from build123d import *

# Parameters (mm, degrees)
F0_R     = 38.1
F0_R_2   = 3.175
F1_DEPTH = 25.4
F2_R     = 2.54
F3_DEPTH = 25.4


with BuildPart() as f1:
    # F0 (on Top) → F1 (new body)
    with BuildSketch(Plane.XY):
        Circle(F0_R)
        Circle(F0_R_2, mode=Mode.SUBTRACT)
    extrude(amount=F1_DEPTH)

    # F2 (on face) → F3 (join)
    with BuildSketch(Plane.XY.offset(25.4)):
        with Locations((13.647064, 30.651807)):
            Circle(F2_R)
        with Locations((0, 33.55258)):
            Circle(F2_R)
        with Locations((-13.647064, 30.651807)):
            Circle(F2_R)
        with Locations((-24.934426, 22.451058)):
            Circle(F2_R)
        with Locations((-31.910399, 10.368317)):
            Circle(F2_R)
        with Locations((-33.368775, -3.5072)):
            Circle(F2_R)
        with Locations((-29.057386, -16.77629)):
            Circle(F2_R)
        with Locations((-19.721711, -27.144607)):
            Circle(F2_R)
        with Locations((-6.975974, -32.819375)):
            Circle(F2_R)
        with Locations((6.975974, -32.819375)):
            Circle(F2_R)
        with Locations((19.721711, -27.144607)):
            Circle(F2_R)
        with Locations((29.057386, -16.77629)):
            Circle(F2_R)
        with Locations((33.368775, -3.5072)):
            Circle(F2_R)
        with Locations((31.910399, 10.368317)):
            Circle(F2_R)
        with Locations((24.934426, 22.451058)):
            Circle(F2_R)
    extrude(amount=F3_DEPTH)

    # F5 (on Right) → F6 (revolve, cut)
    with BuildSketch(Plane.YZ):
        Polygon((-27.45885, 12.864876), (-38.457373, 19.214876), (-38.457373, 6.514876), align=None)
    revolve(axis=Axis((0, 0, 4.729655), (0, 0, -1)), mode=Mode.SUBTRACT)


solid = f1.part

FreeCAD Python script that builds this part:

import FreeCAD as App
import Part
import Sketcher

V = App.Vector
Q = App.Units.Quantity


def add_polygon(sketch, points):
    """Adds a closed chain of lines whose ends are joined by coincident constraints."""
    first, n = sketch.GeometryCount, len(points)
    for a, b in zip(points, points[1:] + points[:1]):
        sketch.addGeometry(Part.LineSegment(App.Vector(*a, 0), App.Vector(*b, 0)), False)
    for i in range(n):
        sketch.addConstraint(Sketcher.Constraint("Coincident", first + i, 2, first + (i + 1) % n, 1))

doc = App.newDocument("Part")
body = doc.addObject("PartDesign::Body", "Body")

# Sketch on XY plane
sketch1 = body.newObject("Sketcher::SketchObject", "Sketch")
sketch1.AttachmentSupport = (doc.getObject("XY_Plane"), [""])
sketch1.MapMode = "FlatFace"
sketch1.addGeometry(Part.Circle(V(0, 0, 0), V(0, 0, 1), 38.1), False)
sketch1.addGeometry(Part.Circle(V(0, 0, 0), V(0, 0, 1), 3.2), False)
sketch1.addConstraint(Sketcher.Constraint("Coincident", 0, 3, -1, 1))
sketch1.addConstraint(Sketcher.Constraint("Coincident", 1, 3, -1, 1))
sketch1.addConstraint(Sketcher.Constraint("Diameter", 0, Q("3 in")))
sketch1.addConstraint(Sketcher.Constraint("Diameter", 1, Q("0.25 in")))
pad1 = body.newObject("PartDesign::Pad", "Pad")
pad1.Profile = sketch1
pad1.Length = Q("1 in")

# Sketch on XY plane
sketch2 = body.newObject("Sketcher::SketchObject", "Sketch001")
sketch2.AttachmentSupport = (doc.getObject("XY_Plane"), [""])
sketch2.MapMode = "FlatFace"
sketch2.AttachmentOffset = App.Placement(V(0, 0, 1 * 25.4), App.Rotation())
sketch2.addGeometry(Part.Circle(V(13.6, 30.7, 0), V(0, 0, 1), 2.5), False)
sketch2.addGeometry(Part.Circle(V(0, 33.6, 0), V(0, 0, 1), 2.5), False)
sketch2.addGeometry(Part.Circle(V(-13.6, 30.7, 0), V(0, 0, 1), 2.5), False)
sketch2.addGeometry(Part.Circle(V(-24.9, 22.5, 0), V(0, 0, 1), 2.5), False)
sketch2.addGeometry(Part.Circle(V(-31.9, 10.4, 0), V(0, 0, 1), 2.5), False)
sketch2.addGeometry(Part.Circle(V(-33.4, -3.5, 0), V(0, 0, 1), 2.5), False)
sketch2.addGeometry(Part.Circle(V(-29.1, -16.8, 0), V(0, 0, 1), 2.5), False)
sketch2.addGeometry(Part.Circle(V(-19.7, -27.1, 0), V(0, 0, 1), 2.5), False)
sketch2.addGeometry(Part.Circle(V(-7, -32.8, 0), V(0, 0, 1), 2.5), False)
sketch2.addGeometry(Part.Circle(V(7, -32.8, 0), V(0, 0, 1), 2.5), False)
sketch2.addGeometry(Part.Circle(V(19.7, -27.1, 0), V(0, 0, 1), 2.5), False)
sketch2.addGeometry(Part.Circle(V(29.1, -16.8, 0), V(0, 0, 1), 2.5), False)
sketch2.addGeometry(Part.Circle(V(33.4, -3.5, 0), V(0, 0, 1), 2.5), False)
sketch2.addGeometry(Part.Circle(V(31.9, 10.4, 0), V(0, 0, 1), 2.5), False)
sketch2.addGeometry(Part.Circle(V(24.9, 22.5, 0), V(0, 0, 1), 2.5), False)
sketch2.addConstraint(Sketcher.Constraint("Equal", 0, 1))
sketch2.addConstraint(Sketcher.Constraint("Equal", 1, 2))
sketch2.addConstraint(Sketcher.Constraint("Equal", 2, 3))
sketch2.addConstraint(Sketcher.Constraint("Equal", 3, 4))
sketch2.addConstraint(Sketcher.Constraint("Equal", 4, 5))
sketch2.addConstraint(Sketcher.Constraint("Equal", 5, 6))
sketch2.addConstraint(Sketcher.Constraint("Equal", 6, 7))
sketch2.addConstraint(Sketcher.Constraint("Equal", 7, 8))
sketch2.addConstraint(Sketcher.Constraint("Equal", 8, 9))
sketch2.addConstraint(Sketcher.Constraint("Equal", 9, 10))
sketch2.addConstraint(Sketcher.Constraint("Equal", 10, 11))
sketch2.addConstraint(Sketcher.Constraint("Equal", 11, 12))
sketch2.addConstraint(Sketcher.Constraint("Equal", 12, 13))
sketch2.addConstraint(Sketcher.Constraint("Equal", 13, 14))
sketch2.addConstraint(Sketcher.Constraint("Symmetric", 0, 3, 2, 3, -2))
sketch2.addConstraint(Sketcher.Constraint("Symmetric", 8, 3, 9, 3, -2))
sketch2.addConstraint(Sketcher.Constraint("Symmetric", 7, 3, 10, 3, -2))
sketch2.addConstraint(Sketcher.Constraint("Symmetric", 6, 3, 11, 3, -2))
sketch2.addConstraint(Sketcher.Constraint("Symmetric", 5, 3, 12, 3, -2))
sketch2.addConstraint(Sketcher.Constraint("Symmetric", 4, 3, 13, 3, -2))
sketch2.addConstraint(Sketcher.Constraint("Symmetric", 3, 3, 14, 3, -2))
sketch2.addConstraint(Sketcher.Constraint("PointOnObject", 1, 3, -2))
sketch2.addConstraint(Sketcher.Constraint("Diameter", 0, Q("0.2 in")))
sketch2.addConstraint(Sketcher.Constraint("DistanceY", -1, 1, 3, 3, Q("0.8838999 in")))
sketch2.addConstraint(Sketcher.Constraint("DistanceX", 4, 3, -1, 1, 31.910399))
sketch2.addConstraint(Sketcher.Constraint("DistanceY", 5, 3, -1, 1, 3.5072))
sketch2.addConstraint(Sketcher.Constraint("DistanceX", 5, 3, 8, 3, 26.392801))
sketch2.addConstraint(Sketcher.Constraint("DistanceY", -1, 1, 1, 3, 33.55258))
sketch2.addConstraint(Sketcher.Constraint("DistanceY", 6, 3, -1, 1, 16.77629))
sketch2.addConstraint(Sketcher.Constraint("DistanceX", 7, 3, -1, 1, 19.721711))
sketch2.addConstraint(Sketcher.Constraint("DistanceX", 2, 3, 0, 3, 27.294128))
sketch2.addConstraint(Sketcher.Constraint("DistanceX", 3, 3, 2, 3, 11.287362))
sketch2.addConstraint(Sketcher.Constraint("DistanceY", 3, 3, 2, 3, 8.200749))
sketch2.addConstraint(Sketcher.Constraint("DistanceY", 4, 3, 3, 3, 12.082741))
sketch2.addConstraint(Sketcher.Constraint("DistanceX", 5, 3, 3, 3, 8.434349))
sketch2.addConstraint(Sketcher.Constraint("DistanceX", 5, 3, 6, 3, 4.311389))
sketch2.addConstraint(Sketcher.Constraint("DistanceY", 8, 3, 7, 3, 5.674768))
sketch2.addConstraint(Sketcher.Constraint("DistanceY", 8, 3, 4, 3, 43.187692))
pad2 = body.newObject("PartDesign::Pad", "Pad001")
pad2.Profile = sketch2
pad2.Length = Q("1 in")

# Sketch on YZ plane
sketch3 = body.newObject("Sketcher::SketchObject", "Sketch002")
sketch3.AttachmentSupport = (doc.getObject("YZ_Plane"), [""])
sketch3.MapMode = "FlatFace"
add_polygon(sketch3, [(-27, 13), (-38, 19), (-38, 7)])  # lines 0-2
sketch3.addConstraint(Sketcher.Constraint("Vertical", 1))
sketch3.addConstraint(Sketcher.Constraint("Equal", 0, 2))
sketch3.addConstraint(Sketcher.Constraint("DistanceY", 1, 2, 1, 1, Q("0.5 in")))
sketch3.addConstraint(Sketcher.Constraint("Angle", 0, Q("150.000001 deg")))
sketch3.addConstraint(Sketcher.Constraint("DistanceX", 2, 2, -1, 1, 27.45885))
sketch3.addConstraint(Sketcher.Constraint("DistanceY", -1, 1, 0, 2, 19.214876))
groove = body.newObject("PartDesign::Groove", "Groove")
groove.Profile = sketch3
groove.ReferenceAxis = (sketch3, ["V_Axis"])
groove.Angle = 360

doc.recompute()
